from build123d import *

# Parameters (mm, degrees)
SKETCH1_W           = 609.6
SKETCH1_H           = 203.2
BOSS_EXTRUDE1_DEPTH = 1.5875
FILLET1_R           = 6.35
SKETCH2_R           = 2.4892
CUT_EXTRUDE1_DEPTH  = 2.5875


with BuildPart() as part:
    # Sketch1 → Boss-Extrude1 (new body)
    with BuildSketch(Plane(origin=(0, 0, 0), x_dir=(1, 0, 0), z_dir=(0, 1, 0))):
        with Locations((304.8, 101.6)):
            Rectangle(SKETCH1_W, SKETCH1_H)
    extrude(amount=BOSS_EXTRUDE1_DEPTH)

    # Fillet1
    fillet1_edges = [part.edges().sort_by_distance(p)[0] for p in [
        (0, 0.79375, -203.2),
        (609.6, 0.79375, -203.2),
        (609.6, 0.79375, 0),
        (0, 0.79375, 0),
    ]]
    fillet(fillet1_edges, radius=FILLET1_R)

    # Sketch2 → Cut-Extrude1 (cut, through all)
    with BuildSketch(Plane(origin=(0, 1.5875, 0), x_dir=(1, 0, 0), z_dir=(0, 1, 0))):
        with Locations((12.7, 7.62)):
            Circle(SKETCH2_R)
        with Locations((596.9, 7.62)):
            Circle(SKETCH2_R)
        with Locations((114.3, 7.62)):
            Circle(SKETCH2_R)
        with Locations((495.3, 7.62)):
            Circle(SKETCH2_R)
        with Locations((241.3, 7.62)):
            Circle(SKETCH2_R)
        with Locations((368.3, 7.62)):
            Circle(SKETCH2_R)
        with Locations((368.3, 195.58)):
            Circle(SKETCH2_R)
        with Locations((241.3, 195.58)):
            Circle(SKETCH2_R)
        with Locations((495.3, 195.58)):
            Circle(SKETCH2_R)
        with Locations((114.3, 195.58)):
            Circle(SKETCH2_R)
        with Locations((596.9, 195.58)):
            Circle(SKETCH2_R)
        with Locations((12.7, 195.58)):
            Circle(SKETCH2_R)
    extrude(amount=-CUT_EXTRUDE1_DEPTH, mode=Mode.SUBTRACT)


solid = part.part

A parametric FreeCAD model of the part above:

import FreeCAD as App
import Part
import Sketcher

V = App.Vector
Q = App.Units.Quantity


def edges_at(feature, points):
    """Names of the edges that pass closest to the given points."""
    edges = feature.Shape.Edges
    near = lambda p: min(range(len(edges)), key=lambda i: edges[i].distToShape(Part.Vertex(*p))[0])
    return sorted({f"Edge{near(p) + 1}" for p in points})

doc = App.newDocument("Part")
body = doc.addObject("PartDesign::Body", "Body")

sketch1 = doc.addObject("Sketcher::SketchObject", "Sketch")
body.addObject(sketch1)
sketch1.AttachmentSupport = (doc.XZ_Plane, [""])
sketch1.MapMode = "FlatFace"
sketch1.addGeometry([
    Part.LineSegment(V(0, -203.2, 0), V(0, 0, 0)),
    Part.LineSegment(V(0, 0, 0), V(609.6, 0, 0)),
    Part.LineSegment(V(609.6, 0, 0), V(609.6, -203.2, 0)),
    Part.LineSegment(V(609.6, -203.2, 0), V(0, -203.2, 0)),
], False)
sketch1.addConstraint([
    Sketcher.Constraint("Coincident", 0, 2, 1, 1),
    Sketcher.Constraint("Coincident", 1, 2, 2, 1),
    Sketcher.Constraint("Coincident", 2, 2, 3, 1),
    Sketcher.Constraint("Coincident", 3, 2, 0, 1),
    Sketcher.Constraint("Vertical", 0),
    Sketcher.Constraint("Horizontal", 1),
    Sketcher.Constraint("Vertical", 2),
    Sketcher.Constraint("Horizontal", 3),
    Sketcher.Constraint("Coincident", 0, 2, -1, 1),
    Sketcher.Constraint("DistanceX", 1, 1, 1, 2, Q("24 in")),
    Sketcher.Constraint("DistanceY", 0, 1, 0, 2, Q("8 in")),
])
pad1 = doc.addObject("PartDesign::Pad", "Pad")
body.addObject(pad1)
pad1.Profile = sketch1
pad1.Length = Q("0.0625 in")
pad1.Reversed = True
doc.recompute()

fillet = doc.addObject("PartDesign::Fillet", "Fillet")
body.addObject(fillet)
fillet.Base = (pad1, edges_at(pad1, [
    (0, 0.794, -203.2),
    (609.6, 0.794, -203.2),
    (609.6, 0.794, 0),
    (0, 0.794, 0),
]))
fillet.Radius = Q("0.25 in")

sketch2 = doc.addObject("Sketcher::SketchObject", "Sketch001")
body.addObject(sketch2)
sketch2.AttachmentSupport = (doc.XZ_Plane, [""])
sketch2.MapMode = "FlatFace"
sketch2.AttachmentOffset = App.Placement(V(0, 0, -0.0625 * 25.4), App.Rotation())
sketch2.addGeometry([
    Part.Circle(V(12.7, -7.62, 0), V(0, 0, 1), 2.4892),
    Part.Circle(V(596.9, -7.62, 0), V(0, 0, 1), 2.4892),
    Part.Circle(V(114.3, -7.62, 0), V(0, 0, 1), 2.4892),
    Part.Circle(V(495.3, -7.62, 0), V(0, 0, 1), 2.4892),
    Part.Circle(V(241.3, -7.62, 0), V(0, 0, 1), 2.4892),
    Part.Circle(V(368.3, -7.62, 0), V(0, 0, 1), 2.4892),
    Part.Circle(V(368.3, -195.58, 0), V(0, 0, 1), 2.4892),
    Part.Circle(V(241.3, -195.58, 0), V(0, 0, 1), 2.4892),
    Part.Circle(V(495.3, -195.58, 0), V(0, 0, 1), 2.4892),
    Part.Circle(V(114.3, -195.58, 0), V(0, 0, 1), 2.4892),
    Part.Circle(V(596.9, -195.58, 0), V(0, 0, 1), 2.4892),
    Part.Circle(V(12.7, -195.58, 0), V(0, 0, 1), 2.4892),
], False)
sketch2.addConstraint([
    Sketcher.Constraint("Equal", 0, 1),
    Sketcher.Constraint("Equal", 1, 2),
    Sketcher.Constraint("Equal", 2, 3),
    Sketcher.Constraint("Equal", 3, 4),
    Sketcher.Constraint("Equal", 4, 5),
    Sketcher.Constraint("Equal", 5, 6),
    Sketcher.Constraint("Equal", 6, 7),
    Sketcher.Constraint("Equal", 7, 8),
    Sketcher.Constraint("Equal", 8, 9),
    Sketcher.Constraint("Equal", 9, 10),
    Sketcher.Constraint("Equal", 10, 11),
    Sketcher.Constraint("Horizontal", 0, 3, 1, 3),
    Sketcher.Constraint("Horizontal", 1, 3, 2, 3),
    Sketcher.Constraint("Horizontal", 2, 3, 3, 3),
    Sketcher.Constraint("Horizontal", 3, 3, 4, 3),
    Sketcher.Constraint("Horizontal", 4, 3, 5, 3),
    Sketcher.Constraint("Horizontal", 6, 3, 7, 3),
    Sketcher.Constraint("Horizontal", 7, 3, 8, 3),
    Sketcher.Constraint("Horizontal", 8, 3, 9, 3),
    Sketcher.Constraint("Horizontal", 9, 3, 10, 3),
    Sketcher.Constraint("Horizontal", 10, 3, 11, 3),
    Sketcher.Constraint("Vertical", 5, 3, 6, 3),
    Sketcher.Constraint("Vertical", 4, 3, 7, 3),
    Sketcher.Constraint("Vertical", 3, 3, 8, 3),
    Sketcher.Constraint("Vertical", 2, 3, 9, 3),
    Sketcher.Constraint("Vertical", 1, 3, 10, 3),
    Sketcher.Constraint("Vertical", 0, 3, 11, 3),
    Sketcher.Constraint("Diameter", 0, Q("0.196 in")),
    Sketcher.Constraint("DistanceX", 0, 3, 1, 3, Q("23 in")),
    Sketcher.Constraint("DistanceX", 0, 3, 2, 3, Q("4 in")),
    Sketcher.Constraint("DistanceX", 3, 3, 1, 3, Q("4 in")),
    Sketcher.Constraint("DistanceX", 2, 3, 4, 3, Q("5 in")),
    Sketcher.Constraint("DistanceX", 5, 3, 3, 3, Q("5 in")),
    Sketcher.Constraint("DistanceX", -1, 1, 0, 3, Q("0.5 in")),
    Sketcher.Constraint("DistanceY", 0, 3, -1, 1, Q("0.3 in")),
    Sketcher.Constraint("DistanceY", 6, 3, -1, 1, Q("7.7 in")),
])
pocket1 = doc.addObject("PartDesign::Pocket", "Pocket")
body.addObject(pocket1)
pocket1.Profile = sketch2
pocket1.Type = "ThroughAll"
pocket1.Reversed = True

doc.recompute()
